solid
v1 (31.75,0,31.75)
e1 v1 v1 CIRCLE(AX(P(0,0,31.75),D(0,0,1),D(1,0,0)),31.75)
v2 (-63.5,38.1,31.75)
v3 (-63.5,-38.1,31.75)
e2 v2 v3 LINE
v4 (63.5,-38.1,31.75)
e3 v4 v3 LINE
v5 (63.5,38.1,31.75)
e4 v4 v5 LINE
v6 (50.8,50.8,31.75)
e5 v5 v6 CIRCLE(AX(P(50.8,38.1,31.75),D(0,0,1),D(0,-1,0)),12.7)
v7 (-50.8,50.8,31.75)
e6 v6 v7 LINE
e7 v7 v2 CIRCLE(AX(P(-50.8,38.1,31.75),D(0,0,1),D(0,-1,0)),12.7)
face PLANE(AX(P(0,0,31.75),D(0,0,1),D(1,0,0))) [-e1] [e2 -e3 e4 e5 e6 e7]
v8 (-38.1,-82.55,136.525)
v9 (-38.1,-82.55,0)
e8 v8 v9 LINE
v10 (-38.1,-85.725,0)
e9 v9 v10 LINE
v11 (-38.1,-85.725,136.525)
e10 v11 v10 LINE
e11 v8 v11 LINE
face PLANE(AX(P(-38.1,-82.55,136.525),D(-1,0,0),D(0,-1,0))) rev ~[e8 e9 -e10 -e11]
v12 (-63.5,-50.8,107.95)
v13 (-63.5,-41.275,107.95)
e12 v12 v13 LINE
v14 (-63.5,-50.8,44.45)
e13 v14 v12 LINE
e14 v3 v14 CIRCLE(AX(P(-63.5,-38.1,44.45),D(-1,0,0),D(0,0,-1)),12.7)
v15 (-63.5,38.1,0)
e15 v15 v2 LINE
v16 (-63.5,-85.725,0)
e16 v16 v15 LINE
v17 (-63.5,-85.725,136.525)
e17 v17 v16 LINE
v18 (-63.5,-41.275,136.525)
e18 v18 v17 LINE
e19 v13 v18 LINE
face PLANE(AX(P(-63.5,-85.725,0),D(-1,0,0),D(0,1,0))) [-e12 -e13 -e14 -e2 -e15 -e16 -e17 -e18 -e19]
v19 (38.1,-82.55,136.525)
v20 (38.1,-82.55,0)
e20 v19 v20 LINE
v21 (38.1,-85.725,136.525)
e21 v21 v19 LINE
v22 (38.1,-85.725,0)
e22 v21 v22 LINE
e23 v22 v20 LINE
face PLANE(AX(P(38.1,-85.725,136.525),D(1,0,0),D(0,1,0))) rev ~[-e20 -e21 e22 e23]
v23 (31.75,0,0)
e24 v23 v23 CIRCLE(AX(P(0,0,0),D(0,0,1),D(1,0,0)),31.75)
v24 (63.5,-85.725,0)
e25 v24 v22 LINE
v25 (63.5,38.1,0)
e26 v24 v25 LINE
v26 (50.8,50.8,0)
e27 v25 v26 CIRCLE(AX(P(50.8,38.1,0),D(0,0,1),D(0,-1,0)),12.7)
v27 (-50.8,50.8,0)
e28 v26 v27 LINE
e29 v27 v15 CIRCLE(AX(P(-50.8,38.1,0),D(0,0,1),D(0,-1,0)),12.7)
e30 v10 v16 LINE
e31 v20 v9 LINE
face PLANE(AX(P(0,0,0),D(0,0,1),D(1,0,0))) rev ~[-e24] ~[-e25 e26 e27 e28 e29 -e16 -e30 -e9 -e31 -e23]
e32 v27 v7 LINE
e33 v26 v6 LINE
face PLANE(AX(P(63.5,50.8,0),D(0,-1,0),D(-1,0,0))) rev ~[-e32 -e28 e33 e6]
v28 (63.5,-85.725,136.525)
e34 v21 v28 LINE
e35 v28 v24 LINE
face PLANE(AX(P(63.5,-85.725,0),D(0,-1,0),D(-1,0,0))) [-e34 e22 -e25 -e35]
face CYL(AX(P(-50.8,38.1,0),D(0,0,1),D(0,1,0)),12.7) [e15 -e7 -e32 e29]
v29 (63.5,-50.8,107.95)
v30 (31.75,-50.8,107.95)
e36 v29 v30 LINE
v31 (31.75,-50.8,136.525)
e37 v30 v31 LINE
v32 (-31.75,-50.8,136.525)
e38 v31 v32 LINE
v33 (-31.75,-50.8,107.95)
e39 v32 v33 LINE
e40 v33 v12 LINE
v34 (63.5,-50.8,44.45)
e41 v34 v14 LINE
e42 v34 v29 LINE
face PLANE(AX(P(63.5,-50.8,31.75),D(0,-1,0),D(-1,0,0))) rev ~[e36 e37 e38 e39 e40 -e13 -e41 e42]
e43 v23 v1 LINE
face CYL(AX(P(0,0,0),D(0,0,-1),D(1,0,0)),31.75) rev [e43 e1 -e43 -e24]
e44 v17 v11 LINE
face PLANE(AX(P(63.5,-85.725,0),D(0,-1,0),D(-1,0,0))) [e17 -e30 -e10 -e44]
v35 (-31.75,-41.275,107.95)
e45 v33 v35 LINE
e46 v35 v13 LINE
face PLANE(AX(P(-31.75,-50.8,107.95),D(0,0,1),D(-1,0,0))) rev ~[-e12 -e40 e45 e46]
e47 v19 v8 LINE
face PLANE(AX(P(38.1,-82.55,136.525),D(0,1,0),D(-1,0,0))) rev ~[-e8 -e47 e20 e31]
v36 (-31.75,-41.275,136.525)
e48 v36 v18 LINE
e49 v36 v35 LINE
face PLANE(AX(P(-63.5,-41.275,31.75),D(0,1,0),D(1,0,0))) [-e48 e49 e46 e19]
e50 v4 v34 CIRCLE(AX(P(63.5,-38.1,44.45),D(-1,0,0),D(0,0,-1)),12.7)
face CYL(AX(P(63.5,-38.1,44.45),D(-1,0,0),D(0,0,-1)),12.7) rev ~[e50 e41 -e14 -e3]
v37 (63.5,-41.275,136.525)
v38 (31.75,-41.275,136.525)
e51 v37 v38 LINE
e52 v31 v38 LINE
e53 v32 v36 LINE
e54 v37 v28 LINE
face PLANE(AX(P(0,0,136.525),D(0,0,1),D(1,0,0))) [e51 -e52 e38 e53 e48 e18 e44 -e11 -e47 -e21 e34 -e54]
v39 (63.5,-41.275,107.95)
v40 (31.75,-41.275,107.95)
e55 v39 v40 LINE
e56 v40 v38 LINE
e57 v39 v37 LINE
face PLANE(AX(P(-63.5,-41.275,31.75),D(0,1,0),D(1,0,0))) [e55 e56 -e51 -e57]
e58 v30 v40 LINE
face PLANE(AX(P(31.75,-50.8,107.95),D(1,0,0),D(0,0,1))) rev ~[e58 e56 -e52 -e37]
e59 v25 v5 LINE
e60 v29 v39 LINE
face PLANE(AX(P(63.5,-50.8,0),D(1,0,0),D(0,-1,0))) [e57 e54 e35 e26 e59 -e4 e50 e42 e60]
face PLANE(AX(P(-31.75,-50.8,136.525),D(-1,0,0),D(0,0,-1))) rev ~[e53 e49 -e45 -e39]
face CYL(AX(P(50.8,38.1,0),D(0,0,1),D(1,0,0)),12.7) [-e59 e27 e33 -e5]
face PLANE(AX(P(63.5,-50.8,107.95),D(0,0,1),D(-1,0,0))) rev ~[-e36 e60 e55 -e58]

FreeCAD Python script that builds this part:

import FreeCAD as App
import Part
import Sketcher
Q = App.Units.Quantity


def edges_at(feature, points):
    """Names of the edges that pass closest to the given points."""
    edges = feature.Shape.Edges
    near = lambda p: min(range(len(edges)), key=lambda i: edges[i].distToShape(Part.Vertex(*p))[0])
    return sorted({f"Edge{near(p) + 1}" for p in points})


def add_polygon(sketch, points):
    """Adds a closed chain of lines whose ends are joined by coincident constraints."""
    first, n = sketch.GeometryCount, len(points)
    for a, b in zip(points, points[1:] + points[:1]):
        sketch.addGeometry(Part.LineSegment(App.Vector(*a, 0), App.Vector(*b, 0)), False)
    for i in range(n):
        sketch.addConstraint(Sketcher.Constraint("Coincident", first + i, 2, first + (i + 1) % n, 1))

doc = App.newDocument("Part")
body = doc.addObject("PartDesign::Body", "Body")

# Sketch on XY plane
sketch1 = body.newObject("Sketcher::SketchObject", "Sketch")
sketch1.AttachmentSupport = (doc.getObject("XY_Plane"), [""])
sketch1.MapMode = "FlatFace"
add_polygon(sketch1, [(63.5, -85.725), (63.5, 50.8), (-63.5, 50.8), (-63.5, -85.725)])  # lines 0-3
sketch1.addGeometry(Part.Circle(App.Vector(0, 0, 0), App.Vector(0, 0, 1), 31.75), False)  # 4
sketch1.addConstraint(Sketcher.Constraint("Vertical", 0))
sketch1.addConstraint(Sketcher.Constraint("Horizontal", 1))
sketch1.addConstraint(Sketcher.Constraint("Vertical", 2))
sketch1.addConstraint(Sketcher.Constraint("Horizontal", 3))
sketch1.addConstraint(Sketcher.Constraint("Coincident", 4, 3, -1, 1))
sketch1.addConstraint(Sketcher.Constraint("Diameter", 4, Q("2.5 in")))
sketch1.addConstraint(Sketcher.Constraint("DistanceX", 1, 2, 1, 1, Q("5 in")))
sketch1.addConstraint(Sketcher.Constraint("DistanceX", -1, 1, 0, 2, Q("2.5 in")))
sketch1.addConstraint(Sketcher.Constraint("DistanceY", 0, 1, 0, 2, Q("5.375 in")))
sketch1.addConstraint(Sketcher.Constraint("DistanceY", -1, 1, 0, 2, Q("2 in")))
pad1 = body.newObject("PartDesign::Pad", "Pad")
pad1.Profile = sketch1
pad1.Length = Q("1.25 in")

# Sketch on XY plane
sketch2 = body.newObject("Sketcher::SketchObject", "Sketch001")
sketch2.AttachmentSupport = (doc.getObject("XY_Plane"), [""])
sketch2.MapMode = "FlatFace"
sketch2.AttachmentOffset = App.Placement(App.Vector(0, 0, 1.25 * 25.4), App.Rotation())
add_polygon(sketch2, [(63.5, -50.8), (-63.5, -50.8), (-63.5, -85.725), (63.5, -85.725)])  # lines 0-3
sketch2.addConstraint(Sketcher.Constraint("Horizontal", 0))
sketch2.addConstraint(Sketcher.Constraint("Vertical", 1))
sketch2.addConstraint(Sketcher.Constraint("Horizontal", 2))
sketch2.addConstraint(Sketcher.Constraint("Vertical", 3))
sketch2.addConstraint(Sketcher.Constraint("DistanceX", 0, 2, 0, 1, Q("5 in")))
sketch2.addConstraint(Sketcher.Constraint("DistanceY", 0, 2, -1, 1, Q("2 in")))
sketch2.addConstraint(Sketcher.Constraint("DistanceX", 0, 2, -1, 1, Q("2.5 in")))
sketch2.addConstraint(Sketcher.Constraint("DistanceY", 1, 2, 1, 1, Q("1.375 in")))
pad2 = body.newObject("PartDesign::Pad", "Pad001")
pad2.Profile = sketch2
pad2.Length = Q("4.125 in")

# Sketch on XY plane
sketch3 = body.newObject("Sketcher::SketchObject", "Sketch002")
sketch3.AttachmentSupport = (doc.getObject("XY_Plane"), [""])
sketch3.MapMode = "FlatFace"
sketch3.AttachmentOffset = App.Placement(App.Vector(0, 0, 5.375 * 25.4), App.Rotation())
add_polygon(sketch3, [(-38.1, -82.55), (-38.1, -85.725), (38.1, -85.725), (38.1, -82.55)])  # lines 0-3
sketch3.addConstraint(Sketcher.Constraint("Vertical", 0))
sketch3.addConstraint(Sketcher.Constraint("Horizontal", 1))
sketch3.addConstraint(Sketcher.Constraint("Vertical", 2))
sketch3.addConstraint(Sketcher.Constraint("Horizontal", 3))
sketch3.addConstraint(Sketcher.Constraint("DistanceX", 1, 1, 1, 2, Q("3 in")))
sketch3.addConstraint(Sketcher.Constraint("DistanceY", 0, 2, 0, 1, Q("0.125 in")))
sketch3.addConstraint(Sketcher.Constraint("DistanceX", 0, 2, -1, 1, Q("1.5 in")))
sketch3.addConstraint(Sketcher.Constraint("DistanceY", 2, 2, -1, 1, Q("3.25 in")))
pocket1 = body.newObject("PartDesign::Pocket", "Pocket")
pocket1.Profile = sketch3
pocket1.Type = "ThroughAll"

# Sketch on XZ plane
sketch4 = body.newObject("Sketcher::SketchObject", "Sketch003")
sketch4.AttachmentSupport = (doc.getObject("XZ_Plane"), [""])
sketch4.MapMode = "FlatFace"
sketch4.AttachmentOffset = App.Placement(App.Vector(0, 0, 2 * 25.4), App.Rotation())
add_polygon(sketch4, [(-63.5, 136.525), (-31.75, 136.525), (-31.75, 107.95), (-63.5, 107.95)])  # lines 0-3
add_polygon(sketch4, [(31.75, 136.525), (63.5, 136.525), (63.5, 107.95), (31.75, 107.95)])  # lines 4-7
sketch4.addConstraint(Sketcher.Constraint("Horizontal", 0))
sketch4.addConstraint(Sketcher.Constraint("Vertical", 1))
sketch4.addConstraint(Sketcher.Constraint("Horizontal", 2))
sketch4.addConstraint(Sketcher.Constraint("Vertical", 3))
sketch4.addConstraint(Sketcher.Constraint("Horizontal", 4))
sketch4.addConstraint(Sketcher.Constraint("Vertical", 5))
sketch4.addConstraint(Sketcher.Constraint("Horizontal", 6))
sketch4.addConstraint(Sketcher.Constraint("Vertical", 7))
sketch4.addConstraint(Sketcher.Constraint("Symmetric", 3, 2, 4, 2, -2))
sketch4.addConstraint(Sketcher.Constraint("Symmetric", 1, 2, 6, 2, -2))
sketch4.addConstraint(Sketcher.Constraint("DistanceX", 2, 2, -1, 1, Q("2.5 in")))
sketch4.addConstraint(Sketcher.Constraint("DistanceX", 1, 2, 6, 2, Q("2.5 in")))
sketch4.addConstraint(Sketcher.Constraint("DistanceY", 1, 2, 1, 1, Q("1.125 in")))
sketch4.addConstraint(Sketcher.Constraint("DistanceY", -1, 1, 1, 2, Q("4.25 in")))
pad3 = body.newObject("PartDesign::Pad", "Pad002")
pad3.Profile = sketch4
pad3.Length = Q("0.375 in")
pad3.Reversed = True
doc.recompute()

fillet = body.newObject("PartDesign::Fillet", "Fillet")
fillet.Base = (pad3, edges_at(pad3, [(63.5, 50.8, 15.875), (-63.5, 50.8, 15.875), (0, -50.8, 31.75)]))
fillet.Radius = Q("0.5 in")

doc.recompute()
